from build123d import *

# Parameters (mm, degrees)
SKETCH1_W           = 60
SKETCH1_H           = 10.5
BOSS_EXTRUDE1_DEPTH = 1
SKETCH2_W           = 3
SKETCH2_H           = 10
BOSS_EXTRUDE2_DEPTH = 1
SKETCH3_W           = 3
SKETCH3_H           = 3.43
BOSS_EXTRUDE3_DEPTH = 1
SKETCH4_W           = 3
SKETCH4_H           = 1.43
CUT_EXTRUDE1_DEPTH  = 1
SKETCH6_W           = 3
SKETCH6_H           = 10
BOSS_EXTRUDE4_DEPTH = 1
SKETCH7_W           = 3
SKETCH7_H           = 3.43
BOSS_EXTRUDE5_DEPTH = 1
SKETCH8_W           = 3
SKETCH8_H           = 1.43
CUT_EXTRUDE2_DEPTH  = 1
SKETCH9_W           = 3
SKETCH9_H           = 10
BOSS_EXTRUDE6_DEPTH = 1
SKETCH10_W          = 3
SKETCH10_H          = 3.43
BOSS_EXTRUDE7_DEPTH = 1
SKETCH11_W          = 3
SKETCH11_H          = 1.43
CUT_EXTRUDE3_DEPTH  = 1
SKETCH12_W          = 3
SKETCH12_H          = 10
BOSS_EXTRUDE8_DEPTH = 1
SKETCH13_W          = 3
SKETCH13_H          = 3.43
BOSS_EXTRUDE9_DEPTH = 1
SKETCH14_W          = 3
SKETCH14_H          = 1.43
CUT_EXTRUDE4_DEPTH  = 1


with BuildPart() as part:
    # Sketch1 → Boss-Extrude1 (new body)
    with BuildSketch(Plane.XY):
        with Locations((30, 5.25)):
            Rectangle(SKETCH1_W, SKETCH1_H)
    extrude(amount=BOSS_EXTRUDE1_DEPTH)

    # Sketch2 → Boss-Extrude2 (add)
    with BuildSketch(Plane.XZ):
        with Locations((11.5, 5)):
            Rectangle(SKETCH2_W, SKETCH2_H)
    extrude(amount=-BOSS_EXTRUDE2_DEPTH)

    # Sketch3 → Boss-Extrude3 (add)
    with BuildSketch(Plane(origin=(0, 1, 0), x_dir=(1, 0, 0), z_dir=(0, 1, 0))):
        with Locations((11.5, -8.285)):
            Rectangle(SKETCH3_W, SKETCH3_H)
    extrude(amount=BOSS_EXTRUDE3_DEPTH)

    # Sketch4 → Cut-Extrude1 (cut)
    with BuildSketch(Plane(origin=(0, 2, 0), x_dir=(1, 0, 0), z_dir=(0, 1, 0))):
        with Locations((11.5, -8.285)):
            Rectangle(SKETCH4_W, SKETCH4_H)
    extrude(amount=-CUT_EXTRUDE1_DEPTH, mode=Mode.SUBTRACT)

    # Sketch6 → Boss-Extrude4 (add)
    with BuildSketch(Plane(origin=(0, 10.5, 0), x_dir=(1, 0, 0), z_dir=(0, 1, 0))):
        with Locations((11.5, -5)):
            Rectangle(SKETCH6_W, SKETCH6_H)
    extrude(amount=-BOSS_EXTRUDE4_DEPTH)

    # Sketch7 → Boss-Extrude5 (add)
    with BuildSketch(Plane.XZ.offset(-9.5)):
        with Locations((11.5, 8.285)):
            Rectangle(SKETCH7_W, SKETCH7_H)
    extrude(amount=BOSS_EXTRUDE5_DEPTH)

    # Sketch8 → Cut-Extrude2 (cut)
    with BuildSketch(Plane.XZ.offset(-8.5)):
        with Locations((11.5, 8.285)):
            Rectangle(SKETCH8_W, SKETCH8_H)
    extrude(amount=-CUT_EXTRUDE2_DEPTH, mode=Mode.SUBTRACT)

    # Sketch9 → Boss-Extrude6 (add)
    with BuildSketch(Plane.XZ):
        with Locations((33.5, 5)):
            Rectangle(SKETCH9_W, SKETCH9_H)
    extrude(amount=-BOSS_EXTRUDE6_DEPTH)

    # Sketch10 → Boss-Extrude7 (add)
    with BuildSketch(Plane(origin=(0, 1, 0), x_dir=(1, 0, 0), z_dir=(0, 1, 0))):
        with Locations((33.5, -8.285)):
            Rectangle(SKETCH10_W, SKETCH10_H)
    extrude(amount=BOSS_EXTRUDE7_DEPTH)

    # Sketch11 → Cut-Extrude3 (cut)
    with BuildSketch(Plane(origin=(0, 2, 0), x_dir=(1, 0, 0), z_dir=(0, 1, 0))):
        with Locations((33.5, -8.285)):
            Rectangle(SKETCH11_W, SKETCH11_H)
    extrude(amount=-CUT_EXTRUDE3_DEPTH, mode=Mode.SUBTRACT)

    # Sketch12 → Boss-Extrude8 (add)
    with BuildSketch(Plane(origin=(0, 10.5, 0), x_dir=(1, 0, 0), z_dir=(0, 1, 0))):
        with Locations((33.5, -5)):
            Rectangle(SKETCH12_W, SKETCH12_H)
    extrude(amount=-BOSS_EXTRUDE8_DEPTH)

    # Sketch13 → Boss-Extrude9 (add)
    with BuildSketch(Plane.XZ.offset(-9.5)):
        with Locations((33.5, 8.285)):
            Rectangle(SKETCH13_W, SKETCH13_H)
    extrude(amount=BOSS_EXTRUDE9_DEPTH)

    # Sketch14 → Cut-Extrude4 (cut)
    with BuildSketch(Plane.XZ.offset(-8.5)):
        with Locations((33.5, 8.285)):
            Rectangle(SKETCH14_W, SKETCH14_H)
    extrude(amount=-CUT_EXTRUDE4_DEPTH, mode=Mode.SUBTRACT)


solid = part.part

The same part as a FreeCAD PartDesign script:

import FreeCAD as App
import Part
import Sketcher

V = App.Vector

doc = App.newDocument("Part")
body = doc.addObject("PartDesign::Body", "Body")

sketch1 = body.newObject("Sketcher::SketchObject", "Sketch")
sketch1.AttachmentSupport = (doc.getObject("XY_Plane"), [""])
sketch1.MapMode = "FlatFace"
sketch1.addGeometry([
    Part.LineSegment(V(0, 10.5, 0), V(0, 0, 0)),
    Part.LineSegment(V(0, 0, 0), V(60, 0, 0)),
    Part.LineSegment(V(60, 0, 0), V(60, 10.5, 0)),
    Part.LineSegment(V(60, 10.5, 0), V(0, 10.5, 0)),
], False)
sketch1.addConstraint([
    Sketcher.Constraint("Coincident", 0, 2, 1, 1),
    Sketcher.Constraint("Coincident", 1, 2, 2, 1),
    Sketcher.Constraint("Coincident", 2, 2, 3, 1),
    Sketcher.Constraint("Coincident", 3, 2, 0, 1),
    Sketcher.Constraint("Vertical", 0),
    Sketcher.Constraint("Horizontal", 1),
    Sketcher.Constraint("Vertical", 2),
    Sketcher.Constraint("Horizontal", 3),
    Sketcher.Constraint("Coincident", 0, 2, -1, 1),
    Sketcher.Constraint("DistanceX", 1, 1, 1, 2, 60.0),
    Sketcher.Constraint("DistanceY", 0, 2, 0, 1, 10.5),
])
pad1 = body.newObject("PartDesign::Pad", "Pad")
pad1.Profile = sketch1
pad1.Length = 1

sketch2 = body.newObject("Sketcher::SketchObject", "Sketch001")
sketch2.AttachmentSupport = (doc.getObject("XZ_Plane"), [""])
sketch2.MapMode = "FlatFace"
sketch2.addGeometry([
    Part.LineSegment(V(10, 10, 0), V(10, 0, 0)),
    Part.LineSegment(V(10, 0, 0), V(13, 0, 0)),
    Part.LineSegment(V(13, 0, 0), V(13, 10, 0)),
    Part.LineSegment(V(13, 10, 0), V(10, 10, 0)),
], False)
sketch2.addConstraint([
    Sketcher.Constraint("Coincident", 0, 2, 1, 1),
    Sketcher.Constraint("Coincident", 1, 2, 2, 1),
    Sketcher.Constraint("Coincident", 2, 2, 3, 1),
    Sketcher.Constraint("Coincident", 3, 2, 0, 1),
    Sketcher.Constraint("Vertical", 0),
    Sketcher.Constraint("Horizontal", 1),
    Sketcher.Constraint("Vertical", 2),
    Sketcher.Constraint("Horizontal", 3),
    Sketcher.Constraint("PointOnObject", 0, 2, -1),
    Sketcher.Constraint("DistanceX", 1, 1, 1, 2, 3.0),
    Sketcher.Constraint("DistanceY", 0, 2, 0, 1, 10.0),
    Sketcher.Constraint("DistanceX", -1, 1, 0, 2, 10.0),
])
pad2 = body.newObject("PartDesign::Pad", "Pad001")
pad2.Profile = sketch2
pad2.Length = 1
pad2.Reversed = True

sketch3 = body.newObject("Sketcher::SketchObject", "Sketch002")
sketch3.AttachmentSupport = (doc.getObject("XZ_Plane"), [""])
sketch3.MapMode = "FlatFace"
sketch3.AttachmentOffset = App.Placement(V(0, 0, -1), App.Rotation())
sketch3.addGeometry([
    Part.LineSegment(V(10, 6.57, 0), V(10, 10, 0)),
    Part.LineSegment(V(10, 10, 0), V(13, 10, 0)),
    Part.LineSegment(V(13, 10, 0), V(13, 6.57, 0)),
    Part.LineSegment(V(13, 6.57, 0), V(10, 6.57, 0)),
], False)
sketch3.addConstraint([
    Sketcher.Constraint("Coincident", 0, 2, 1, 1),
    Sketcher.Constraint("Coincident", 1, 2, 2, 1),
    Sketcher.Constraint("Coincident", 2, 2, 3, 1),
    Sketcher.Constraint("Coincident", 3, 2, 0, 1),
    Sketcher.Constraint("Vertical", 0),
    Sketcher.Constraint("Horizontal", 1),
    Sketcher.Constraint("Vertical", 2),
    Sketcher.Constraint("Horizontal", 3),
    Sketcher.Constraint("DistanceX", 1, 1, 1, 2, 3.0),
    Sketcher.Constraint("DistanceX", -1, 1, 0, 2, 10.0),
    Sketcher.Constraint("DistanceY", -1, 1, 0, 2, 10.0),
    Sketcher.Constraint("DistanceY", 0, 1, 0, 2, 3.43),
])
pad3 = body.newObject("PartDesign::Pad", "Pad002")
pad3.Profile = sketch3
pad3.Length = 1
pad3.Reversed = True

sketch4 = body.newObject("Sketcher::SketchObject", "Sketch003")
sketch4.AttachmentSupport = (doc.getObject("XZ_Plane"), [""])
sketch4.MapMode = "FlatFace"
sketch4.AttachmentOffset = App.Placement(V(0, 0, -2), App.Rotation())
sketch4.addGeometry([
    Part.LineSegment(V(10, 7.57, 0), V(10, 9, 0)),
    Part.LineSegment(V(10, 9, 0), V(13, 9, 0)),
    Part.LineSegment(V(13, 9, 0), V(13, 7.57, 0)),
    Part.LineSegment(V(13, 7.57, 0), V(10, 7.57, 0)),
], False)
sketch4.addConstraint([
    Sketcher.Constraint("Coincident", 0, 2, 1, 1),
    Sketcher.Constraint("Coincident", 1, 2, 2, 1),
    Sketcher.Constraint("Coincident", 2, 2, 3, 1),
    Sketcher.Constraint("Coincident", 3, 2, 0, 1),
    Sketcher.Constraint("Vertical", 0),
    Sketcher.Constraint("Horizontal", 1),
    Sketcher.Constraint("Vertical", 2),
    Sketcher.Constraint("Horizontal", 3),
    Sketcher.Constraint("DistanceX", 1, 1, 1, 2, 3.0),
    Sketcher.Constraint("DistanceX", -1, 1, 0, 2, 10.0),
    Sketcher.Constraint("DistanceY", -1, 1, 0, 2, 9.0),
    Sketcher.Constraint("DistanceY", 0, 1, 0, 2, 1.43),
])
pocket1 = body.newObject("PartDesign::Pocket", "Pocket")
pocket1.Profile = sketch4
pocket1.Length = 1
pocket1.Reversed = True

sketch5 = body.newObject("Sketcher::SketchObject", "Sketch004")
sketch5.AttachmentSupport = (doc.getObject("XZ_Plane"), [""])
sketch5.MapMode = "FlatFace"
sketch5.AttachmentOffset = App.Placement(V(0, 0, -10.5), App.Rotation())
sketch5.addGeometry([
    Part.LineSegment(V(10, 0, 0), V(10, 10, 0)),
    Part.LineSegment(V(10, 10, 0), V(13, 10, 0)),
    Part.LineSegment(V(13, 10, 0), V(13, 0, 0)),
    Part.LineSegment(V(13, 0, 0), V(10, 0, 0)),
], False)
sketch5.addConstraint([
    Sketcher.Constraint("Coincident", 0, 2, 1, 1),
    Sketcher.Constraint("Coincident", 1, 2, 2, 1),
    Sketcher.Constraint("Coincident", 2, 2, 3, 1),
    Sketcher.Constraint("Coincident", 3, 2, 0, 1),
    Sketcher.Constraint("Vertical", 0),
    Sketcher.Constraint("Horizontal", 1),
    Sketcher.Constraint("Vertical", 2),
    Sketcher.Constraint("Horizontal", 3),
    Sketcher.Constraint("PointOnObject", 2, 2, -1),
    Sketcher.Constraint("DistanceX", 1, 1, 1, 2, 3.0),
    Sketcher.Constraint("DistanceY", 0, 1, 0, 2, 10.0),
    Sketcher.Constraint("DistanceX", -1, 1, 0, 2, 10.0),
])
pad4 = body.newObject("PartDesign::Pad", "Pad003")
pad4.Profile = sketch5
pad4.Length = 1

sketch6 = body.newObject("Sketcher::SketchObject", "Sketch005")
sketch6.AttachmentSupport = (doc.getObject("XZ_Plane"), [""])
sketch6.MapMode = "FlatFace"
sketch6.AttachmentOffset = App.Placement(V(0, 0, -9.5), App.Rotation())
sketch6.addGeometry([
    Part.LineSegment(V(10, 10, 0), V(10, 6.57, 0)),
    Part.LineSegment(V(10, 6.57, 0), V(13, 6.57, 0)),
    Part.LineSegment(V(13, 6.57, 0), V(13, 10, 0)),
    Part.LineSegment(V(13, 10, 0), V(10, 10, 0)),
], False)
sketch6.addConstraint([
    Sketcher.Constraint("Coincident", 0, 2, 1, 1),
    Sketcher.Constraint("Coincident", 1, 2, 2, 1),
    Sketcher.Constraint("Coincident", 2, 2, 3, 1),
    Sketcher.Constraint("Coincident", 3, 2, 0, 1),
    Sketcher.Constraint("Vertical", 0),
    Sketcher.Constraint("Horizontal", 1),
    Sketcher.Constraint("Vertical", 2),
    Sketcher.Constraint("Horizontal", 3),
    Sketcher.Constraint("DistanceX", 1, 1, 1, 2, 3.0),
    Sketcher.Constraint("DistanceX", -1, 1, 0, 2, 10.0),
    Sketcher.Constraint("DistanceY", -1, 1, 2, 2, 10.0),
    Sketcher.Constraint("DistanceY", 0, 2, 0, 1, 3.43),
])
pad5 = body.newObject("PartDesign::Pad", "Pad004")
pad5.Profile = sketch6
pad5.Length = 1

sketch7 = body.newObject("Sketcher::SketchObject", "Sketch006")
sketch7.AttachmentSupport = (doc.getObject("XZ_Plane"), [""])
sketch7.MapMode = "FlatFace"
sketch7.AttachmentOffset = App.Placement(V(0, 0, -8.5), App.Rotation())
sketch7.addGeometry([
    Part.LineSegment(V(10, 9, 0), V(10, 7.57, 0)),
    Part.LineSegment(V(10, 7.57, 0), V(13, 7.57, 0)),
    Part.LineSegment(V(13, 7.57, 0), V(13, 9, 0)),
    Part.LineSegment(V(13, 9, 0), V(10, 9, 0)),
], False)
sketch7.addConstraint([
    Sketcher.Constraint("Coincident", 0, 2, 1, 1),
    Sketcher.Constraint("Coincident", 1, 2, 2, 1),
    Sketcher.Constraint("Coincident", 2, 2, 3, 1),
    Sketcher.Constraint("Coincident", 3, 2, 0, 1),
    Sketcher.Constraint("Vertical", 0),
    Sketcher.Constraint("Horizontal", 1),
    Sketcher.Constraint("Vertical", 2),
    Sketcher.Constraint("Horizontal", 3),
    Sketcher.Constraint("DistanceX", 1, 1, 1, 2, 3.0),
    Sketcher.Constraint("DistanceX", -1, 1, 0, 2, 10.0),
    Sketcher.Constraint("DistanceY", -1, 1, 2, 2, 9.0),
    Sketcher.Constraint("DistanceY", 0, 2, 0, 1, 1.43),
])
pocket2 = body.newObject("PartDesign::Pocket", "Pocket001")
pocket2.Profile = sketch7
pocket2.Length = 1

sketch8 = body.newObject("Sketcher::SketchObject", "Sketch007")
sketch8.AttachmentSupport = (doc.getObject("XZ_Plane"), [""])
sketch8.MapMode = "FlatFace"
sketch8.addGeometry([
    Part.LineSegment(V(32, 10, 0), V(32, 0, 0)),
    Part.LineSegment(V(32, 0, 0), V(35, 0, 0)),
    Part.LineSegment(V(35, 0, 0), V(35, 10, 0)),
    Part.LineSegment(V(35, 10, 0), V(32, 10, 0)),
], False)
sketch8.addConstraint([
    Sketcher.Constraint("Coincident", 0, 2, 1, 1),
    Sketcher.Constraint("Coincident", 1, 2, 2, 1),
    Sketcher.Constraint("Coincident", 2, 2, 3, 1),
    Sketcher.Constraint("Coincident", 3, 2, 0, 1),
    Sketcher.Constraint("Vertical", 0),
    Sketcher.Constraint("Horizontal", 1),
    Sketcher.Constraint("Vertical", 2),
    Sketcher.Constraint("Horizontal", 3),
    Sketcher.Constraint("PointOnObject", 0, 2, -1),
    Sketcher.Constraint("DistanceX", 1, 1, 1, 2, 3.0),
    Sketcher.Constraint("DistanceY", 0, 2, 0, 1, 10.0),
    Sketcher.Constraint("DistanceX", -1, 1, 0, 2, 32.0),
])
pad6 = body.newObject("PartDesign::Pad", "Pad005")
pad6.Profile = sketch8
pad6.Length = 1
pad6.Reversed = True

sketch9 = body.newObject("Sketcher::SketchObject", "Sketch008")
sketch9.AttachmentSupport = (doc.getObject("XZ_Plane"), [""])
sketch9.MapMode = "FlatFace"
sketch9.AttachmentOffset = App.Placement(V(0, 0, -1), App.Rotation())
sketch9.addGeometry([
    Part.LineSegment(V(32, 6.57, 0), V(32, 10, 0)),
    Part.LineSegment(V(32, 10, 0), V(35, 10, 0)),
    Part.LineSegment(V(35, 10, 0), V(35, 6.57, 0)),
    Part.LineSegment(V(35, 6.57, 0), V(32, 6.57, 0)),
], False)
sketch9.addConstraint([
    Sketcher.Constraint("Coincident", 0, 2, 1, 1),
    Sketcher.Constraint("Coincident", 1, 2, 2, 1),
    Sketcher.Constraint("Coincident", 2, 2, 3, 1),
    Sketcher.Constraint("Coincident", 3, 2, 0, 1),
    Sketcher.Constraint("Vertical", 0),
    Sketcher.Constraint("Horizontal", 1),
    Sketcher.Constraint("Vertical", 2),
    Sketcher.Constraint("Horizontal", 3),
    Sketcher.Constraint("DistanceX", 1, 1, 1, 2, 3.0),
    Sketcher.Constraint("DistanceX", -1, 1, 0, 2, 32.0),
    Sketcher.Constraint("DistanceY", -1, 1, 0, 2, 10.0),
    Sketcher.Constraint("DistanceY", 0, 1, 0, 2, 3.43),
])
pad7 = body.newObject("PartDesign::Pad", "Pad006")
pad7.Profile = sketch9
pad7.Length = 1
pad7.Reversed = True

sketch10 = body.newObject("Sketcher::SketchObject", "Sketch009")
sketch10.AttachmentSupport = (doc.getObject("XZ_Plane"), [""])
sketch10.MapMode = "FlatFace"
sketch10.AttachmentOffset = App.Placement(V(0, 0, -2), App.Rotation())
sketch10.addGeometry([
    Part.LineSegment(V(32, 7.57, 0), V(32, 9, 0)),
    Part.LineSegment(V(32, 9, 0), V(35, 9, 0)),
    Part.LineSegment(V(35, 9, 0), V(35, 7.57, 0)),
    Part.LineSegment(V(35, 7.57, 0), V(32, 7.57, 0)),
], False)
sketch10.addConstraint([
    Sketcher.Constraint("Coincident", 0, 2, 1, 1),
    Sketcher.Constraint("Coincident", 1, 2, 2, 1),
    Sketcher.Constraint("Coincident", 2, 2, 3, 1),
    Sketcher.Constraint("Coincident", 3, 2, 0, 1),
    Sketcher.Constraint("Vertical", 0),
    Sketcher.Constraint("Horizontal", 1),
    Sketcher.Constraint("Vertical", 2),
    Sketcher.Constraint("Horizontal", 3),
    Sketcher.Constraint("DistanceX", 1, 1, 1, 2, 3.0),
    Sketcher.Constraint("DistanceX", -1, 1, 0, 2, 32.0),
    Sketcher.Constraint("DistanceY", -1, 1, 0, 2, 9.0),
    Sketcher.Constraint("DistanceY", 0, 1, 0, 2, 1.43),
])
pocket3 = body.newObject("PartDesign::Pocket", "Pocket002")
pocket3.Profile = sketch10
pocket3.Length = 1
pocket3.Reversed = True

sketch11 = body.newObject("Sketcher::SketchObject", "Sketch010")
sketch11.AttachmentSupport = (doc.getObject("XZ_Plane"), [""])
sketch11.MapMode = "FlatFace"
sketch11.AttachmentOffset = App.Placement(V(0, 0, -10.5), App.Rotation())
sketch11.addGeometry([
    Part.LineSegment(V(32, 0, 0), V(32, 10, 0)),
    Part.LineSegment(V(32, 10, 0), V(35, 10, 0)),
    Part.LineSegment(V(35, 10, 0), V(35, 0, 0)),
    Part.LineSegment(V(35, 0, 0), V(32, 0, 0)),
], False)
sketch11.addConstraint([
    Sketcher.Constraint("Coincident", 0, 2, 1, 1),
    Sketcher.Constraint("Coincident", 1, 2, 2, 1),
    Sketcher.Constraint("Coincident", 2, 2, 3, 1),
    Sketcher.Constraint("Coincident", 3, 2, 0, 1),
    Sketcher.Constraint("Vertical", 0),
    Sketcher.Constraint("Horizontal", 1),
    Sketcher.Constraint("Vertical", 2),
    Sketcher.Constraint("Horizontal", 3),
    Sketcher.Constraint("PointOnObject", 2, 2, -1),
    Sketcher.Constraint("DistanceX", 1, 1, 1, 2, 3.0),
    Sketcher.Constraint("DistanceY", 0, 1, 0, 2, 10.0),
    Sketcher.Constraint("DistanceX", -1, 1, 0, 2, 32.0),
])
pad8 = body.newObject("PartDesign::Pad", "Pad007")
pad8.Profile = sketch11
pad8.Length = 1

sketch12 = body.newObject("Sketcher::SketchObject", "Sketch011")
sketch12.AttachmentSupport = (doc.getObject("XZ_Plane"), [""])
sketch12.MapMode = "FlatFace"
sketch12.AttachmentOffset = App.Placement(V(0, 0, -9.5), App.Rotation())
sketch12.addGeometry([
    Part.LineSegment(V(32, 10, 0), V(32, 6.57, 0)),
    Part.LineSegment(V(32, 6.57, 0), V(35, 6.57, 0)),
    Part.LineSegment(V(35, 6.57, 0), V(35, 10, 0)),
    Part.LineSegment(V(35, 10, 0), V(32, 10, 0)),
], False)
sketch12.addConstraint([
    Sketcher.Constraint("Coincident", 0, 2, 1, 1),
    Sketcher.Constraint("Coincident", 1, 2, 2, 1),
    Sketcher.Constraint("Coincident", 2, 2, 3, 1),
    Sketcher.Constraint("Coincident", 3, 2, 0, 1),
    Sketcher.Constraint("Vertical", 0),
    Sketcher.Constraint("Horizontal", 1),
    Sketcher.Constraint("Vertical", 2),
    Sketcher.Constraint("Horizontal", 3),
    Sketcher.Constraint("DistanceX", 1, 1, 1, 2, 3.0),
    Sketcher.Constraint("DistanceX", -1, 1, 0, 2, 32.0),
    Sketcher.Constraint("DistanceY", -1, 1, 2, 2, 10.0),
    Sketcher.Constraint("DistanceY", 0, 2, 0, 1, 3.43),
])
pad9 = body.newObject("PartDesign::Pad", "Pad008")
pad9.Profile = sketch12
pad9.Length = 1

sketch13 = body.newObject("Sketcher::SketchObject", "Sketch012")
sketch13.AttachmentSupport = (doc.getObject("XZ_Plane"), [""])
sketch13.MapMode = "FlatFace"
sketch13.AttachmentOffset = App.Placement(V(0, 0, -8.5), App.Rotation())
sketch13.addGeometry([
    Part.LineSegment(V(32, 9, 0), V(32, 7.57, 0)),
    Part.LineSegment(V(32, 7.57, 0), V(35, 7.57, 0)),
    Part.LineSegment(V(35, 7.57, 0), V(35, 9, 0)),
    Part.LineSegment(V(35, 9, 0), V(32, 9, 0)),
], False)
sketch13.addConstraint([
    Sketcher.Constraint("Coincident", 0, 2, 1, 1),
    Sketcher.Constraint("Coincident", 1, 2, 2, 1),
    Sketcher.Constraint("Coincident", 2, 2, 3, 1),
    Sketcher.Constraint("Coincident", 3, 2, 0, 1),
    Sketcher.Constraint("Vertical", 0),
    Sketcher.Constraint("Horizontal", 1),
    Sketcher.Constraint("Vertical", 2),
    Sketcher.Constraint("Horizontal", 3),
    Sketcher.Constraint("DistanceX", 1, 1, 1, 2, 3.0),
    Sketcher.Constraint("DistanceX", -1, 1, 0, 2, 32.0),
    Sketcher.Constraint("DistanceY", -1, 1, 2, 2, 9.0),
    Sketcher.Constraint("DistanceY", 0, 2, 0, 1, 1.43),
])
pocket4 = body.newObject("PartDesign::Pocket", "Pocket003")
pocket4.Profile = sketch13
pocket4.Length = 1

doc.recompute()
